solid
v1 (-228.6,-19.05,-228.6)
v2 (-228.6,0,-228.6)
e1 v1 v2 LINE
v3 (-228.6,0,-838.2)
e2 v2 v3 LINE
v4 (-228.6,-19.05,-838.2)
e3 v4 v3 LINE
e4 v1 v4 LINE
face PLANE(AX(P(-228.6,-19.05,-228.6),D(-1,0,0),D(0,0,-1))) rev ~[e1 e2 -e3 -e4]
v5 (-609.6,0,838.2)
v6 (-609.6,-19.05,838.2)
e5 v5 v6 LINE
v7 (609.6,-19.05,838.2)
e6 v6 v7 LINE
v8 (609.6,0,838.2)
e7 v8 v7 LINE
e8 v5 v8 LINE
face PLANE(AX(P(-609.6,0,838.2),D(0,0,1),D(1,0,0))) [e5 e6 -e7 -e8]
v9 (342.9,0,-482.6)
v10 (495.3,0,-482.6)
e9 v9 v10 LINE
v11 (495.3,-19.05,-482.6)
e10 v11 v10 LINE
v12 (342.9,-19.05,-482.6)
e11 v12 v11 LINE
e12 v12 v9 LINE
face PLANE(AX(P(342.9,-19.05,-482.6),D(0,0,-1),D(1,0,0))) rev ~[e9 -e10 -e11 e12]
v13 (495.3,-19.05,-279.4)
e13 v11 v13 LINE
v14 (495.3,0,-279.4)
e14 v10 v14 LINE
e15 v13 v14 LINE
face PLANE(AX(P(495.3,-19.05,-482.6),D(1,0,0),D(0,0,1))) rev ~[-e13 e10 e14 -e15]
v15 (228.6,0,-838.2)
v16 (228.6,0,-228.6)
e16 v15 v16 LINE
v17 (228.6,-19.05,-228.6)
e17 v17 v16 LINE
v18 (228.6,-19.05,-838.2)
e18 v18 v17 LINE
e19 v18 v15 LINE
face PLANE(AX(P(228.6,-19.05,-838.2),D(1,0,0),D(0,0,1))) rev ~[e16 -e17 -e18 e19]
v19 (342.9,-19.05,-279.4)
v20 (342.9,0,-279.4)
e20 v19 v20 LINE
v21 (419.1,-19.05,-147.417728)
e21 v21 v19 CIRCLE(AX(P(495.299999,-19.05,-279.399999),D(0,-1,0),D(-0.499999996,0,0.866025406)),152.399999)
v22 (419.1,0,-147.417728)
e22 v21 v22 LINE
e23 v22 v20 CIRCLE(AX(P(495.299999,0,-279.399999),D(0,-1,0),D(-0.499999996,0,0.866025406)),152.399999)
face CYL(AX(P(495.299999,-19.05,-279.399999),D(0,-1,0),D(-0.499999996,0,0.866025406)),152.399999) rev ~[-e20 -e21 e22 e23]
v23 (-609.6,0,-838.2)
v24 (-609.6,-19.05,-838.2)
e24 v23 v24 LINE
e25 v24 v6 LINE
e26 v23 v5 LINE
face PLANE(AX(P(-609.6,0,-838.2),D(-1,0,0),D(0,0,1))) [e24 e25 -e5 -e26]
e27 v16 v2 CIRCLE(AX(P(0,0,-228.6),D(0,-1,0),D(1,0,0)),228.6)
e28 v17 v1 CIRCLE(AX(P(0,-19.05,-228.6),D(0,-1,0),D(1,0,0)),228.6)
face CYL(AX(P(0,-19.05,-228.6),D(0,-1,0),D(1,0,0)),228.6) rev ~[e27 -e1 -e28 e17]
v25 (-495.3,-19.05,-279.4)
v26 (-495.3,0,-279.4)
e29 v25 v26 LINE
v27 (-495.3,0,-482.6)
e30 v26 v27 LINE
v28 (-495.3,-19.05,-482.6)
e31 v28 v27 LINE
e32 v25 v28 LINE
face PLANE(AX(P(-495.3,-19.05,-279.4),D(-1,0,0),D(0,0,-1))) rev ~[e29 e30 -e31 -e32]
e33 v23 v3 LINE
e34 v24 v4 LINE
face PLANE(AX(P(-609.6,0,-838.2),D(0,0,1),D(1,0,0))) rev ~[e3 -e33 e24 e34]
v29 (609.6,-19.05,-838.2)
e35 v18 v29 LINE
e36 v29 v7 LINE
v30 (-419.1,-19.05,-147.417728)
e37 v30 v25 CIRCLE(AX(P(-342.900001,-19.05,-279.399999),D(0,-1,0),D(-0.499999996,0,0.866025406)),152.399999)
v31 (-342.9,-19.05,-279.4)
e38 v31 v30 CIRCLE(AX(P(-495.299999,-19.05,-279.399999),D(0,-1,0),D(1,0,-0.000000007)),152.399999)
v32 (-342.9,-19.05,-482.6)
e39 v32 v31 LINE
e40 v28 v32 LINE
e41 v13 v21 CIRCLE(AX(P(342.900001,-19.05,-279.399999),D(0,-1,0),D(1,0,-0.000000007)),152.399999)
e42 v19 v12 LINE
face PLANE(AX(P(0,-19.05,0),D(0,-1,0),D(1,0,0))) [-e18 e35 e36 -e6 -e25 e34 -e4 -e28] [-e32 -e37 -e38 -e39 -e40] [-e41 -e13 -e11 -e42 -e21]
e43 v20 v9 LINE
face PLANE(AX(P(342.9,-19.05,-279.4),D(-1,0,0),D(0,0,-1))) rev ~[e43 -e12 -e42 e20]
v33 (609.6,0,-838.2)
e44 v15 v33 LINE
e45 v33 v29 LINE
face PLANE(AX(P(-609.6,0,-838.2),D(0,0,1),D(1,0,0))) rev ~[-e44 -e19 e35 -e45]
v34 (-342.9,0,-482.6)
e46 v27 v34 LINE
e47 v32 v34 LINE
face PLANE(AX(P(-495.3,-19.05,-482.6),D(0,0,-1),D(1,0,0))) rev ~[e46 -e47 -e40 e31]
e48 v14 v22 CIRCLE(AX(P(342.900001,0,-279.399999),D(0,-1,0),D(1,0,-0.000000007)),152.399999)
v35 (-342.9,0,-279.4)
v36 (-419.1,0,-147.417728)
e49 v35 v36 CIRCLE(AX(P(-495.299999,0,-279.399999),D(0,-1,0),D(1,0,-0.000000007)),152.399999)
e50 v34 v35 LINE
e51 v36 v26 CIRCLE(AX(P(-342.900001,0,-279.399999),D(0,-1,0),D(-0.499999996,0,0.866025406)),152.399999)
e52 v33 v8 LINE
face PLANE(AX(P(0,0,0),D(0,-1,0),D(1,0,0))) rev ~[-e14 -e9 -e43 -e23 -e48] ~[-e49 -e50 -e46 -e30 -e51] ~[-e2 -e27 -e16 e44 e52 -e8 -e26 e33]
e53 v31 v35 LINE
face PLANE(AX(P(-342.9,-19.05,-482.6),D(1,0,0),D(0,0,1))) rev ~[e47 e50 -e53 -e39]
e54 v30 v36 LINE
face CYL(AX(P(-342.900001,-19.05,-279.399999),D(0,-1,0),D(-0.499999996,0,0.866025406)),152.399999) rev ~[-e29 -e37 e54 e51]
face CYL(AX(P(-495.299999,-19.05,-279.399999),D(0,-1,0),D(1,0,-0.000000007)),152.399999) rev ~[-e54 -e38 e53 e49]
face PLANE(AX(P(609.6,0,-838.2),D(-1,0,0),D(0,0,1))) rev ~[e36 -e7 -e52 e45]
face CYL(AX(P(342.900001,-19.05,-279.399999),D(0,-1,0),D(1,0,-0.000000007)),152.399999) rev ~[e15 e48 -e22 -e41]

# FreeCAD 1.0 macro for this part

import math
import FreeCAD as App
import Part
import Sketcher

V = App.Vector
Q = App.Units.Quantity


def add_polygon(sketch, points):
    """Adds a closed chain of lines whose ends are joined by coincident constraints."""
    first, n = sketch.GeometryCount, len(points)
    for a, b in zip(points, points[1:] + points[:1]):
        sketch.addGeometry(Part.LineSegment(App.Vector(*a, 0), App.Vector(*b, 0)), False)
    for i in range(n):
        sketch.addConstraint(Sketcher.Constraint("Coincident", first + i, 2, first + (i + 1) % n, 1))

doc = App.newDocument("Part")
body = doc.addObject("PartDesign::Body", "Body")

# Sketch on XZ plane
sketch1 = body.newObject("Sketcher::SketchObject", "Sketch")
sketch1.AttachmentSupport = (doc.getObject("XZ_Plane"), [""])
sketch1.MapMode = "FlatFace"
add_polygon(sketch1, [(-610, 838), (-610, -838), (610, -838), (610, 838)])  # lines 0-3
sketch1.addConstraint([
    Sketcher.Constraint("Vertical", 0),
    Sketcher.Constraint("Horizontal", 1),
    Sketcher.Constraint("Vertical", 2),
    Sketcher.Constraint("Horizontal", 3),
    Sketcher.Constraint("Symmetric", 0, 2, 2, 2, -1, 1),
    Sketcher.Constraint("DistanceX", 1, 1, 1, 2, Q("48 in")),
    Sketcher.Constraint("DistanceY", 0, 2, 0, 1, Q("66 in")),
])
pad1 = body.newObject("PartDesign::Pad", "Pad")
pad1.Profile = sketch1
pad1.Length = Q("0.75 in")

# Sketch on XZ plane
sketch2 = body.newObject("Sketcher::SketchObject", "Sketch001")
sketch2.AttachmentSupport = (doc.getObject("XZ_Plane"), [""])
sketch2.MapMode = "FlatFace"
sketch2.AttachmentOffset = App.Placement(V(0, 0, 0.75 * 25.4), App.Rotation())
sketch2.addGeometry([
    Part.LineSegment(V(-229, -229, 0), V(-229, -838, 0)),
    Part.LineSegment(V(-229, -838, 0), V(229, -838, 0)),
    Part.LineSegment(V(229, -838, 0), V(229, -229, 0)),
    Part.ArcOfCircle(Part.Circle(V(0, -229, 0), V(0, 0, 1), 229), math.radians(0), math.radians(180)),
], False)
sketch2.addConstraint([
    Sketcher.Constraint("Coincident", 0, 2, 1, 1),
    Sketcher.Constraint("Coincident", 1, 2, 2, 1),
    Sketcher.Constraint("Tangent", 2, 2, 3, 1),
    Sketcher.Constraint("Tangent", 3, 2, 0, 1),
    Sketcher.Constraint("Vertical", 0),
    Sketcher.Constraint("Horizontal", 1),
    Sketcher.Constraint("Vertical", 2),
    Sketcher.Constraint("PointOnObject", 3, 3, -2),
    Sketcher.Constraint("Radius", 3, Q("9 in")),
    Sketcher.Constraint("DistanceY", 0, 2, 0, 1, Q("24 in")),
    Sketcher.Constraint("DistanceY", 3, 3, -1, 1, Q("9 in")),
])
pocket1 = body.newObject("PartDesign::Pocket", "Pocket")
pocket1.Profile = sketch2
pocket1.Type = "ThroughAll"

# Sketch on XZ plane
sketch3 = body.newObject("Sketcher::SketchObject", "Sketch002")
sketch3.AttachmentSupport = (doc.getObject("XZ_Plane"), [""])
sketch3.MapMode = "FlatFace"
sketch3.AttachmentOffset = App.Placement(V(0, 0, 0.75 * 25.4), App.Rotation())
sketch3.addGeometry([
    Part.LineSegment(V(-495, -483, 0), V(-343, -483, 0)),  # 0
    Part.LineSegment(V(-343, -483, 0), V(-343, -279, 0)),  # 1
    Part.ArcOfCircle(Part.Circle(V(-495, -279, 0), V(0, 0, 1), 152), math.radians(0), math.radians(60)),  # 2
    Part.ArcOfCircle(Part.Circle(V(-343, -279, 0), V(0, 0, 1), 152), math.radians(120), math.radians(180)),  # 3
    Part.LineSegment(V(-495, -279, 0), V(-495, -483, 0)),  # 4
    Part.ArcOfCircle(Part.Circle(V(495, -279, 0), V(0, 0, 1), 152), math.radians(120), math.radians(180)),  # 5
    Part.LineSegment(V(343, -279, 0), V(343, -483, 0)),  # 6
    Part.LineSegment(V(343, -483, 0), V(495, -483, 0)),  # 7
    Part.LineSegment(V(495, -483, 0), V(495, -279, 0)),  # 8
    Part.ArcOfCircle(Part.Circle(V(343, -279, 0), V(0, 0, 1), 152), math.radians(0), math.radians(60)),  # 9
], False)
sketch3.addConstraint([
    Sketcher.Constraint("Coincident", 0, 2, 1, 1),
    Sketcher.Constraint("Tangent", 1, 2, 2, 1),
    Sketcher.Constraint("Coincident", 2, 2, 3, 1),
    Sketcher.Constraint("Tangent", 3, 2, 4, 1),
    Sketcher.Constraint("Coincident", 4, 2, 0, 1),
    Sketcher.Constraint("Tangent", 5, 2, 6, 1),
    Sketcher.Constraint("Coincident", 6, 2, 7, 1),
    Sketcher.Constraint("Coincident", 7, 2, 8, 1),
    Sketcher.Constraint("Tangent", 8, 2, 9, 1),
    Sketcher.Constraint("Coincident", 9, 2, 5, 1),
    Sketcher.Constraint("Horizontal", 0),
    Sketcher.Constraint("Vertical", 1),
    Sketcher.Constraint("Vertical", 4),
    Sketcher.Constraint("Vertical", 6),
    Sketcher.Constraint("Horizontal", 7),
    Sketcher.Constraint("Vertical", 8),
    Sketcher.Constraint("Coincident", 1, 2, 3, 3),
    Sketcher.Constraint("Coincident", 5, 2, 9, 3),
    Sketcher.Constraint("Equal", 2, 3),
    Sketcher.Constraint("Equal", 3, 5),
    Sketcher.Constraint("Equal", 5, 9),
    Sketcher.Constraint("Symmetric", 2, 3, 5, 3, -2),
    Sketcher.Constraint("Horizontal", 4, 2, 6, 2),
    Sketcher.Constraint("Radius", 2, Q("6 in")),
    Sketcher.Constraint("DistanceY", 1, 1, 1, 2, Q("8 in")),
    Sketcher.Constraint("DistanceY", 2, 3, -1, 1, Q("11 in")),
    Sketcher.Constraint("DistanceX", 3, 3, 5, 3, Q("33 in")),
])
pocket2 = body.newObject("PartDesign::Pocket", "Pocket001")
pocket2.Profile = sketch3
pocket2.Type = "ThroughAll"

doc.recompute()
